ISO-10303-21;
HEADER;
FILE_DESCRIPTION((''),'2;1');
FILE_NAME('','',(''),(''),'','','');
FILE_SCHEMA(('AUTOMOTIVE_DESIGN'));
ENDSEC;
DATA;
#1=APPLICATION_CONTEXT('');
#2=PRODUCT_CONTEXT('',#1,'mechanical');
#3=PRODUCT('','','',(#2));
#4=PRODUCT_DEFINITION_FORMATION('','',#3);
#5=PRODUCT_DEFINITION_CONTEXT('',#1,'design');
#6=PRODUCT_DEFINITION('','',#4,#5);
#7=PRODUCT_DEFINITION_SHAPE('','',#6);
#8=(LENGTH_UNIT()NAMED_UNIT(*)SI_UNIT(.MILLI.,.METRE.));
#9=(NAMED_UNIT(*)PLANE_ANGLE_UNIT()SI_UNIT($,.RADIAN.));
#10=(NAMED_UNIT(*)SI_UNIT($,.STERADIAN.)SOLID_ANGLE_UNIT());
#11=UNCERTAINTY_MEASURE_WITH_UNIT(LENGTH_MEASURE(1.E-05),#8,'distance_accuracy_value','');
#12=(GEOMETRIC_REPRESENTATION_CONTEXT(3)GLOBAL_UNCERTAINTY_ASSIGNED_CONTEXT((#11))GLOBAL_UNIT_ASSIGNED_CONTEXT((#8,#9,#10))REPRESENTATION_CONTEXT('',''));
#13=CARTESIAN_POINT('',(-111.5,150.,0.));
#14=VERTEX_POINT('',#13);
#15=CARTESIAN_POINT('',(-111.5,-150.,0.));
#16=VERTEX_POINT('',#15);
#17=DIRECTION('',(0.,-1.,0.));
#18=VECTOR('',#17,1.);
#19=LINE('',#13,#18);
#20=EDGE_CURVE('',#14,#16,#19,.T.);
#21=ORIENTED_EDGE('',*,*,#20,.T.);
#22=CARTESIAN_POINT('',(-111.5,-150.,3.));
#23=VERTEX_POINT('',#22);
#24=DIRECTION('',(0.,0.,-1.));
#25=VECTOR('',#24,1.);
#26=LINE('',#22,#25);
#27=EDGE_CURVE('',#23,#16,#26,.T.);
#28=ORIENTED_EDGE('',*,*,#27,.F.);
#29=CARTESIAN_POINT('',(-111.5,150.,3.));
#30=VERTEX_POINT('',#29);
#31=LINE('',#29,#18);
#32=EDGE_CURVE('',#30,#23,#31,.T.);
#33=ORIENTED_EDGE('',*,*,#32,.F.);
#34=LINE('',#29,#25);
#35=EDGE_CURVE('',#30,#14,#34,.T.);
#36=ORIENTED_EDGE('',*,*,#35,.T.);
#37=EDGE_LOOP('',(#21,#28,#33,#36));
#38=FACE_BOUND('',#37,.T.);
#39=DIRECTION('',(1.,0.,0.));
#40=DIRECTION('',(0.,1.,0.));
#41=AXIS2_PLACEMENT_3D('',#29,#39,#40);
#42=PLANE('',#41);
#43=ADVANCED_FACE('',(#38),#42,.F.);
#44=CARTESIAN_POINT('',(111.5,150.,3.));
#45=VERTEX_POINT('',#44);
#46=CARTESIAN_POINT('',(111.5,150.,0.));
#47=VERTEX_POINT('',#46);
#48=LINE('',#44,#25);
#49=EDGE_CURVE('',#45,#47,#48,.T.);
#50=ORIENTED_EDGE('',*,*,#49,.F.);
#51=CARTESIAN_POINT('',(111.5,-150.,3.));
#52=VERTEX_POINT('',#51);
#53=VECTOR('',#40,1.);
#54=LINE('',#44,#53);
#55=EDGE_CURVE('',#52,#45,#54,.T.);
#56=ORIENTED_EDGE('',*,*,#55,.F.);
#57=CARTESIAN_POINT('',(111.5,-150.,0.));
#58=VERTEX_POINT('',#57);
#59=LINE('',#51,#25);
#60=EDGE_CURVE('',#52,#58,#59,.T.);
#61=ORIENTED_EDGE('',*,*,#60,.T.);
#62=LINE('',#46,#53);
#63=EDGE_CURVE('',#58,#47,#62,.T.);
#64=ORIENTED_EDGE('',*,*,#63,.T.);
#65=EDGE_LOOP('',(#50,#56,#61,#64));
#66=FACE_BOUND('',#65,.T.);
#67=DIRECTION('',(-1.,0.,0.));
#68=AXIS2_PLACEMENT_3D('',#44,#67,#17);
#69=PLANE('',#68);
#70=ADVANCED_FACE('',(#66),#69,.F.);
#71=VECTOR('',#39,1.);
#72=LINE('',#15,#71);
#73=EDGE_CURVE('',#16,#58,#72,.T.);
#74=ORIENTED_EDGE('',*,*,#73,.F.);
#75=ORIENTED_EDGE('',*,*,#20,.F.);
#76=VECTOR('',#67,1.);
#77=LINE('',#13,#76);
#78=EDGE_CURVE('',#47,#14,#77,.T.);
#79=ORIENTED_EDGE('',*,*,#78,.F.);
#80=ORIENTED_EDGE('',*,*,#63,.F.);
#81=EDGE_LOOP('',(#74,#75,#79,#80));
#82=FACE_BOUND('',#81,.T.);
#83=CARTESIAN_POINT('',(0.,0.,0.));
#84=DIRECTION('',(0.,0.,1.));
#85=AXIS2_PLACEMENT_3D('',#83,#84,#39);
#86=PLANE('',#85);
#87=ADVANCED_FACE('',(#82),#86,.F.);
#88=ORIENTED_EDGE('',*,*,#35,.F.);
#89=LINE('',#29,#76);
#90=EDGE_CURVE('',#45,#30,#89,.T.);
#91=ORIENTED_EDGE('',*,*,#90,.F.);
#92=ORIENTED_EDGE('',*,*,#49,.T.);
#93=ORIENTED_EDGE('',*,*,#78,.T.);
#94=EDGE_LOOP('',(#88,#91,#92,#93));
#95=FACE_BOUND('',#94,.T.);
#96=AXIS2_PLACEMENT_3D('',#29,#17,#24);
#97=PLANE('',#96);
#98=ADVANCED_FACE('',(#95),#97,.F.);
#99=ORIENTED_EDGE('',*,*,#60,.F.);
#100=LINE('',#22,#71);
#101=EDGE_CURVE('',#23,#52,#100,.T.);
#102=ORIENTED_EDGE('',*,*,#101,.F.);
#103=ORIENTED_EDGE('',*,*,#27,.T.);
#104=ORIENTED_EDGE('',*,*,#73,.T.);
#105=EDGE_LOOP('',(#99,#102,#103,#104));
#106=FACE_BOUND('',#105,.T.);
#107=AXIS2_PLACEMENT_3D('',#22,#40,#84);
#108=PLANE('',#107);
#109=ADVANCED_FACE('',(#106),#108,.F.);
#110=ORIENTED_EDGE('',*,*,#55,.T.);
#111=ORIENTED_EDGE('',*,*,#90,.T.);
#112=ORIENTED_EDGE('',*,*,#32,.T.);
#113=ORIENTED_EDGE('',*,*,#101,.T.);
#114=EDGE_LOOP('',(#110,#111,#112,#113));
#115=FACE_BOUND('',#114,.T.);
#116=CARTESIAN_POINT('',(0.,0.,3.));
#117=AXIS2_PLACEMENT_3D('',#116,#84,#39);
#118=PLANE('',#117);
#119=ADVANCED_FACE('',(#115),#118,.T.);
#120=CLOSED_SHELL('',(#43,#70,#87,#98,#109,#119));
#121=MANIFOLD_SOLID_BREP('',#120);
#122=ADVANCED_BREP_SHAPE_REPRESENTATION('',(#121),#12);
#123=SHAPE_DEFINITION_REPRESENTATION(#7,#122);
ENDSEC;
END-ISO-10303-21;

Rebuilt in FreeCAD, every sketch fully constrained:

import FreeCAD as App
import Part
import Sketcher
from FreeCAD import Vector

doc = App.newDocument("Part")
body = doc.addObject("PartDesign::Body", "Body")

sketch1 = body.newObject("Sketcher::SketchObject", "Sketch")
sketch1.AttachmentSupport = (doc.getObject("XY_Plane"), [""])
sketch1.MapMode = "FlatFace"
sketch1.addGeometry([
    Part.LineSegment(Vector(-111.5, 150, 0), Vector(-111.5, -150, 0)),
    Part.LineSegment(Vector(-111.5, -150, 0), Vector(111.5, -150, 0)),
    Part.LineSegment(Vector(111.5, -150, 0), Vector(111.5, 150, 0)),
    Part.LineSegment(Vector(111.5, 150, 0), Vector(-111.5, 150, 0)),
], False)
sketch1.addConstraint([
    Sketcher.Constraint("Coincident", 0, 2, 1, 1),
    Sketcher.Constraint("Coincident", 1, 2, 2, 1),
    Sketcher.Constraint("Coincident", 2, 2, 3, 1),
    Sketcher.Constraint("Coincident", 3, 2, 0, 1),
    Sketcher.Constraint("Vertical", 0),
    Sketcher.Constraint("Horizontal", 1),
    Sketcher.Constraint("Vertical", 2),
    Sketcher.Constraint("Horizontal", 3),
    Sketcher.Constraint("Symmetric", 0, 2, 2, 2, -1, 1),
    Sketcher.Constraint("DistanceX", 1, 1, 1, 2, 223.0),
    Sketcher.Constraint("DistanceY", 0, 2, 0, 1, 300.0),
])
pad1 = body.newObject("PartDesign::Pad", "Pad")
pad1.Profile = sketch1
pad1.Length = 3

doc.recompute()
